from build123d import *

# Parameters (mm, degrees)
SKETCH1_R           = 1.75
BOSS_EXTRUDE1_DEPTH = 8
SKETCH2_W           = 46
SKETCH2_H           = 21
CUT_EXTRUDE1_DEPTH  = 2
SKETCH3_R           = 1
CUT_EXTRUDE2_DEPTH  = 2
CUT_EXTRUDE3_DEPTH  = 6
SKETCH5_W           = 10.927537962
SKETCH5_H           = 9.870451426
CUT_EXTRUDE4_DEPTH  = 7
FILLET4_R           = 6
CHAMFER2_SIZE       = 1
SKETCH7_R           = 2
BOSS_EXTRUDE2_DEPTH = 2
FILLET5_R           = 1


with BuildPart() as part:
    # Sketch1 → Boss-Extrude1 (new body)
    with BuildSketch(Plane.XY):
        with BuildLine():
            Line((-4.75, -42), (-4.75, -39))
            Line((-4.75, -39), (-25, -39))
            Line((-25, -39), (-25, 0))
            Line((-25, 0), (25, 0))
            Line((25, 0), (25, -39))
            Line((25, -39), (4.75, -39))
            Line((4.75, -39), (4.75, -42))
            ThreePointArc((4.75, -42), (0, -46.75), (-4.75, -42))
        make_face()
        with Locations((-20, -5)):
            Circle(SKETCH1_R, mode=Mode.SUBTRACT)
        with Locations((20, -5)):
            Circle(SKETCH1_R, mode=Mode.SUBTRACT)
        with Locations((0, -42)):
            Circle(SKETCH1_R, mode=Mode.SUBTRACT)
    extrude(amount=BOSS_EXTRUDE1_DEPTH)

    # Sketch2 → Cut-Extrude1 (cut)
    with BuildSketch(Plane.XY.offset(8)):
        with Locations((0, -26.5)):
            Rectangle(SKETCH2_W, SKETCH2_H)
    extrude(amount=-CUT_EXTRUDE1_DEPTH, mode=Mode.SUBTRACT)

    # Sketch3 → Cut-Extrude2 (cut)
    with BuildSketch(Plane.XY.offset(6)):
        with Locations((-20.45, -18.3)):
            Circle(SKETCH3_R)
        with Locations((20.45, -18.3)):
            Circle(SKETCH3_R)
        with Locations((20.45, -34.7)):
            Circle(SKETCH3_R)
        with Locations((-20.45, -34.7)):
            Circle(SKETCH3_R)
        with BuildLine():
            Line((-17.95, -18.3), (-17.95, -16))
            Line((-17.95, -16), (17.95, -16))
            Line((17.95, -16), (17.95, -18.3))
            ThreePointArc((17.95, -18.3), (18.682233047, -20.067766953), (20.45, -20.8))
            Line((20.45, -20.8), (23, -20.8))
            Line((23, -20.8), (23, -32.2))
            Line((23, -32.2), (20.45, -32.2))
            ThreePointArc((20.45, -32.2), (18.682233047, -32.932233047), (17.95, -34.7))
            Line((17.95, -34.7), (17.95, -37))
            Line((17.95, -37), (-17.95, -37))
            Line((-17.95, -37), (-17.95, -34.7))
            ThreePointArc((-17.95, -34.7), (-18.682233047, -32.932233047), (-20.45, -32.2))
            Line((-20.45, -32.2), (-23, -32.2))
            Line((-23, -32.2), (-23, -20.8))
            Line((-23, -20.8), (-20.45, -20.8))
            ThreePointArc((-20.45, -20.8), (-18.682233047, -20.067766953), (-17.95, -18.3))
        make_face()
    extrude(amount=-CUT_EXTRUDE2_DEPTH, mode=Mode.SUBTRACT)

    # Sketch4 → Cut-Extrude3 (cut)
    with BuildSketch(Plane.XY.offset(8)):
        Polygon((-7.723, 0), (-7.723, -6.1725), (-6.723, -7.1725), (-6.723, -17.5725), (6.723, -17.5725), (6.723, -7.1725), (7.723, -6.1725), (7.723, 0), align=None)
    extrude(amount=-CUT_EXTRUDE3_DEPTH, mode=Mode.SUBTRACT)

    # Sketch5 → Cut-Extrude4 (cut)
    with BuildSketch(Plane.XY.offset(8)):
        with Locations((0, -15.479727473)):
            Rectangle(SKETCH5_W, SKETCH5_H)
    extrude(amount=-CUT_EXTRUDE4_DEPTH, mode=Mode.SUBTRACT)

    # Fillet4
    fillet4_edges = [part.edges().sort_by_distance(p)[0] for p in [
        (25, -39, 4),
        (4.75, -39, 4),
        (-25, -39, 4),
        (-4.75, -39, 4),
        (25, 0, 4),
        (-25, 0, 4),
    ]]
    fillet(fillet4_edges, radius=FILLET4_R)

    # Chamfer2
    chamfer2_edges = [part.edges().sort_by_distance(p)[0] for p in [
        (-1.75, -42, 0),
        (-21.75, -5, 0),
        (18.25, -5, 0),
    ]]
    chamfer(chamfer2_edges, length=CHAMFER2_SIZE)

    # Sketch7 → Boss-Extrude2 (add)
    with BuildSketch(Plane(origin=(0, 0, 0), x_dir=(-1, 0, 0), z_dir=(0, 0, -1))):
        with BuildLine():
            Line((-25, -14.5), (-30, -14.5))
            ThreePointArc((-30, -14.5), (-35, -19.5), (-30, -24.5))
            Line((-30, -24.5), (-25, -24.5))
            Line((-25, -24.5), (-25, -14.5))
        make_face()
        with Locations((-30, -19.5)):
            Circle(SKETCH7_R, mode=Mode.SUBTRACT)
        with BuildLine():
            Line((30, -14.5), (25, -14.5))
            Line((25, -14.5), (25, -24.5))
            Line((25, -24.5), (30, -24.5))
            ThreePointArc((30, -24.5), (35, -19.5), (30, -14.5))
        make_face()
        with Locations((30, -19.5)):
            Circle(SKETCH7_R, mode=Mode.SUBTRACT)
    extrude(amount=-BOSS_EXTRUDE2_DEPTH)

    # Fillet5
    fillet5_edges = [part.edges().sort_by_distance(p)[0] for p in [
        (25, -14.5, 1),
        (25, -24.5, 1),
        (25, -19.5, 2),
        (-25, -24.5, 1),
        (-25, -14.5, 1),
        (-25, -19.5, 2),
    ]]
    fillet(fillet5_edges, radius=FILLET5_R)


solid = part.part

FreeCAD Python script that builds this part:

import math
import FreeCAD as App
import Part
import Sketcher

V = App.Vector
Q = App.Units.Quantity


def edges_at(feature, points):
    """Names of the edges that pass closest to the given points."""
    edges = feature.Shape.Edges
    near = lambda p: min(range(len(edges)), key=lambda i: edges[i].distToShape(Part.Vertex(*p))[0])
    return sorted({f"Edge{near(p) + 1}" for p in points})

doc = App.newDocument("Part")
params = doc.addObject("Spreadsheet::Sheet", "Params")
for row, (alias, value) in enumerate([
    ("sketch1_diameter", "3.5 mm"),
    ("sketch1_width", "50 mm"),
    ("sketch1_height", "3 mm"),
    ("sketch1_height2", "39 mm"),
    ("sketch1_radius", "4.75 mm"),
    ("pad1_length", "8 mm"),
    ("sketch2_width", "46 mm"),
    ("sketch2_height", "21 mm"),
    ("pocket1_length", "2 mm"),
    ("sketch3_diameter", "2 mm"),
    ("sketch3_radius", "2.5 mm"),
    ("sketch3_width", "35.9 mm"),
    ("sketch3_height", "2.3 mm"),
    ("sketch3_height2", "11.4 mm"),
    ("pocket2_length", "2 mm"),
    ("sketch4_height", "10.4 mm"),
    ("pocket3_length", "6 mm"),
    ("pocket4_length", "7 mm"),
    ("fillet_radius", "6 mm"),
    ("chamfer_size", "1 mm"),
    ("sketch6_diameter", "4 mm"),
    ("sketch6_radius", "5 mm"),
    ("sketch6_width", "5 mm"),
    ("pad2_length", "2 mm"),
    ("fillet2_radius", "1 mm"),
], start=1):
    params.set(f"A{row}", alias)
    params.set(f"B{row}", "=" + value)
    params.setAlias(f"B{row}", alias)

body = doc.addObject("PartDesign::Body", "Body")

# Sketch on XY plane
sketch1 = body.newObject("Sketcher::SketchObject", "Sketch")
sketch1.AttachmentSupport = (doc.getObject("XY_Plane"), [""])
sketch1.MapMode = "FlatFace"
sketch1.addGeometry(Part.LineSegment(V(-4.8, -39, 0), V(-4.8, -42, 0)), False)
sketch1.addGeometry(Part.ArcOfCircle(Part.Circle(V(0, -42, 0), V(0, 0, 1), 4.8), math.radians(180), math.radians(360)), False)
sketch1.addGeometry(Part.LineSegment(V(4.8, -42, 0), V(4.8, -39, 0)), False)
sketch1.addGeometry(Part.LineSegment(V(4.8, -39, 0), V(25, -39, 0)), False)
sketch1.addGeometry(Part.LineSegment(V(25, -39, 0), V(25, 0, 0)), False)
sketch1.addGeometry(Part.LineSegment(V(25, 0, 0), V(-25, 0, 0)), False)
sketch1.addGeometry(Part.LineSegment(V(-25, 0, 0), V(-25, -39, 0)), False)
sketch1.addGeometry(Part.LineSegment(V(-25, -39, 0), V(-4.8, -39, 0)), False)
sketch1.addGeometry(Part.Circle(V(0, -42, 0), V(0, 0, 1), 1.8), False)
sketch1.addGeometry(Part.Circle(V(20, -5, 0), V(0, 0, 1), 1.8), False)
sketch1.addGeometry(Part.Circle(V(-20, -5, 0), V(0, 0, 1), 1.8), False)
sketch1.addConstraint(Sketcher.Constraint("Tangent", 0, 2, 1, 1))
sketch1.addConstraint(Sketcher.Constraint("Tangent", 1, 2, 2, 1))
sketch1.addConstraint(Sketcher.Constraint("Coincident", 2, 2, 3, 1))
sketch1.addConstraint(Sketcher.Constraint("Coincident", 3, 2, 4, 1))
sketch1.addConstraint(Sketcher.Constraint("Coincident", 4, 2, 5, 1))
sketch1.addConstraint(Sketcher.Constraint("Coincident", 5, 2, 6, 1))
sketch1.addConstraint(Sketcher.Constraint("Coincident", 6, 2, 7, 1))
sketch1.addConstraint(Sketcher.Constraint("Coincident", 7, 2, 0, 1))
sketch1.addConstraint(Sketcher.Constraint("Vertical", 0))
sketch1.addConstraint(Sketcher.Constraint("Vertical", 2))
sketch1.addConstraint(Sketcher.Constraint("Horizontal", 3))
sketch1.addConstraint(Sketcher.Constraint("Vertical", 4))
sketch1.addConstraint(Sketcher.Constraint("Horizontal", 5))
sketch1.addConstraint(Sketcher.Constraint("Vertical", 6))
sketch1.addConstraint(Sketcher.Constraint("Horizontal", 7))
sketch1.addConstraint(Sketcher.Constraint("Coincident", 8, 3, 1, 3))
sketch1.addConstraint(Sketcher.Constraint("Equal", 8, 9))
sketch1.addConstraint(Sketcher.Constraint("Equal", 9, 10))
sketch1.addConstraint(Sketcher.Constraint("Symmetric", 4, 2, 5, 2, -1, 1))
sketch1.addConstraint(Sketcher.Constraint("Symmetric", 9, 3, 10, 3, -2))
sketch1.addConstraint(Sketcher.Constraint("Symmetric", 2, 2, 7, 2, -2))
sketch1.addConstraint(Sketcher.Constraint("Diameter", 8, Q("3.5 mm")))
sketch1.addConstraint(Sketcher.Constraint("DistanceX", 5, 2, 5, 1, Q("50 mm")))
sketch1.addConstraint(Sketcher.Constraint("DistanceY", 0, 2, 0, 1, Q("3 mm")))
sketch1.addConstraint(Sketcher.Constraint("DistanceY", 4, 1, 4, 2, Q("39 mm")))
sketch1.addConstraint(Sketcher.Constraint("Radius", 1, Q("4.75 mm")))
sketch1.addConstraint(Sketcher.Constraint("DistanceX", -1, 1, 9, 3, Q("20 mm")))
sketch1.addConstraint(Sketcher.Constraint("DistanceY", 9, 3, -1, 1, Q("5 mm")))
sketch1.setExpression("Constraints[21]", "Params.sketch1_diameter")
sketch1.setExpression("Constraints[22]", "Params.sketch1_width")
sketch1.setExpression("Constraints[23]", "Params.sketch1_height")
sketch1.setExpression("Constraints[24]", "Params.sketch1_height2")
sketch1.setExpression("Constraints[25]", "Params.sketch1_radius")
pad1 = body.newObject("PartDesign::Pad", "Pad")
pad1.Profile = sketch1
pad1.setExpression("Length", "Params.pad1_length")

# Sketch on XY plane
sketch2 = body.newObject("Sketcher::SketchObject", "Sketch001")
sketch2.AttachmentSupport = (doc.getObject("XY_Plane"), [""])
sketch2.MapMode = "FlatFace"
sketch2.AttachmentOffset = App.Placement(V(0, 0, 8), App.Rotation())
sketch2.addGeometry(Part.LineSegment(V(-23, -16, 0), V(-23, -37, 0)), False)
sketch2.addGeometry(Part.LineSegment(V(-23, -37, 0), V(23, -37, 0)), False)
sketch2.addGeometry(Part.LineSegment(V(23, -37, 0), V(23, -16, 0)), False)
sketch2.addGeometry(Part.LineSegment(V(23, -16, 0), V(-23, -16, 0)), False)
sketch2.addConstraint(Sketcher.Constraint("Coincident", 0, 2, 1, 1))
sketch2.addConstraint(Sketcher.Constraint("Coincident", 1, 2, 2, 1))
sketch2.addConstraint(Sketcher.Constraint("Coincident", 2, 2, 3, 1))
sketch2.addConstraint(Sketcher.Constraint("Coincident", 3, 2, 0, 1))
sketch2.addConstraint(Sketcher.Constraint("Vertical", 0))
sketch2.addConstraint(Sketcher.Constraint("Horizontal", 1))
sketch2.addConstraint(Sketcher.Constraint("Vertical", 2))
sketch2.addConstraint(Sketcher.Constraint("Horizontal", 3))
sketch2.addConstraint(Sketcher.Constraint("DistanceX", 1, 1, 1, 2, Q("46 mm")))
sketch2.addConstraint(Sketcher.Constraint("DistanceY", 0, 2, 0, 1, Q("21 mm")))
sketch2.addConstraint(Sketcher.Constraint("DistanceX", 0, 2, -1, 1, Q("23 mm")))
sketch2.addConstraint(Sketcher.Constraint("DistanceY", 0, 2, -1, 1, Q("37 mm")))
sketch2.setExpression("Constraints[8]", "Params.sketch2_width")
sketch2.setExpression("Constraints[9]", "Params.sketch2_height")
pocket1 = body.newObject("PartDesign::Pocket", "Pocket")
pocket1.Profile = sketch2
pocket1.setExpression("Length", "Params.pocket1_length")

# Sketch on XY plane
sketch3 = body.newObject("Sketcher::SketchObject", "Sketch002")
sketch3.AttachmentSupport = (doc.getObject("XY_Plane"), [""])
sketch3.MapMode = "FlatFace"
sketch3.AttachmentOffset = App.Placement(V(0, 0, 6), App.Rotation())
sketch3.addGeometry(Part.Circle(V(-20.4, -18.3, 0), V(0, 0, 1), 1), False)
sketch3.addGeometry(Part.Circle(V(20.4, -18.3, 0), V(0, 0, 1), 1), False)
sketch3.addGeometry(Part.Circle(V(20.4, -34.7, 0), V(0, 0, 1), 1), False)
sketch3.addGeometry(Part.Circle(V(-20.4, -34.7, 0), V(0, 0, 1), 1), False)
sketch3.addGeometry(Part.LineSegment(V(-17.9, -16, 0), V(-17.9, -18.3, 0)), False)
sketch3.addGeometry(Part.ArcOfCircle(Part.Circle(V(-20.4, -18.3, 0), V(0, 0, 1), 2.5), math.radians(-90), math.radians(0)), False)
sketch3.addGeometry(Part.LineSegment(V(-20.4, -20.8, 0), V(-23, -20.8, 0)), False)
sketch3.addGeometry(Part.LineSegment(V(-23, -20.8, 0), V(-23, -32.2, 0)), False)
sketch3.addGeometry(Part.LineSegment(V(-23, -32.2, 0), V(-20.4, -32.2, 0)), False)
sketch3.addGeometry(Part.ArcOfCircle(Part.Circle(V(-20.4, -34.7, 0), V(0, 0, 1), 2.5), math.radians(0), math.radians(90)), False)
sketch3.addGeometry(Part.LineSegment(V(-17.9, -34.7, 0), V(-17.9, -37, 0)), False)
sketch3.addGeometry(Part.LineSegment(V(-17.9, -37, 0), V(17.9, -37, 0)), False)
sketch3.addGeometry(Part.LineSegment(V(17.9, -37, 0), V(17.9, -34.7, 0)), False)
sketch3.addGeometry(Part.ArcOfCircle(Part.Circle(V(20.4, -34.7, 0), V(0, 0, 1), 2.5), math.radians(90), math.radians(180)), False)
sketch3.addGeometry(Part.LineSegment(V(20.4, -32.2, 0), V(23, -32.2, 0)), False)
sketch3.addGeometry(Part.LineSegment(V(23, -32.2, 0), V(23, -20.8, 0)), False)
sketch3.addGeometry(Part.LineSegment(V(23, -20.8, 0), V(20.4, -20.8, 0)), False)
sketch3.addGeometry(Part.ArcOfCircle(Part.Circle(V(20.4, -18.3, 0), V(0, 0, 1), 2.5), math.radians(180), math.radians(270)), False)
sketch3.addGeometry(Part.LineSegment(V(17.9, -18.3, 0), V(17.9, -16, 0)), False)
sketch3.addGeometry(Part.LineSegment(V(17.9, -16, 0), V(-17.9, -16, 0)), False)
sketch3.addConstraint(Sketcher.Constraint("Tangent", 4, 2, 5, 2))
sketch3.addConstraint(Sketcher.Constraint("Tangent", 5, 1, 6, 1))
sketch3.addConstraint(Sketcher.Constraint("Coincident", 6, 2, 7, 1))
sketch3.addConstraint(Sketcher.Constraint("Coincident", 7, 2, 8, 1))
sketch3.addConstraint(Sketcher.Constraint("Tangent", 8, 2, 9, 2))
sketch3.addConstraint(Sketcher.Constraint("Tangent", 9, 1, 10, 1))
sketch3.addConstraint(Sketcher.Constraint("Coincident", 10, 2, 11, 1))
sketch3.addConstraint(Sketcher.Constraint("Coincident", 11, 2, 12, 1))
sketch3.addConstraint(Sketcher.Constraint("Tangent", 12, 2, 13, 2))
sketch3.addConstraint(Sketcher.Constraint("Tangent", 13, 1, 14, 1))
sketch3.addConstraint(Sketcher.Constraint("Coincident", 14, 2, 15, 1))
sketch3.addConstraint(Sketcher.Constraint("Coincident", 15, 2, 16, 1))
sketch3.addConstraint(Sketcher.Constraint("Tangent", 16, 2, 17, 2))
sketch3.addConstraint(Sketcher.Constraint("Tangent", 17, 1, 18, 1))
sketch3.addConstraint(Sketcher.Constraint("Coincident", 18, 2, 19, 1))
sketch3.addConstraint(Sketcher.Constraint("Coincident", 19, 2, 4, 1))
sketch3.addConstraint(Sketcher.Constraint("Vertical", 4))
sketch3.addConstraint(Sketcher.Constraint("Horizontal", 6))
sketch3.addConstraint(Sketcher.Constraint("Vertical", 7))
sketch3.addConstraint(Sketcher.Constraint("Horizontal", 8))
sketch3.addConstraint(Sketcher.Constraint("Vertical", 10))
sketch3.addConstraint(Sketcher.Constraint("Horizontal", 11))
sketch3.addConstraint(Sketcher.Constraint("Vertical", 12))
sketch3.addConstraint(Sketcher.Constraint("Horizontal", 14))
sketch3.addConstraint(Sketcher.Constraint("Vertical", 15))
sketch3.addConstraint(Sketcher.Constraint("Horizontal", 16))
sketch3.addConstraint(Sketcher.Constraint("Vertical", 18))
sketch3.addConstraint(Sketcher.Constraint("Horizontal", 19))
sketch3.addConstraint(Sketcher.Constraint("Coincident", 5, 3, 0, 3))
sketch3.addConstraint(Sketcher.Constraint("Coincident", 9, 3, 3, 3))
sketch3.addConstraint(Sketcher.Constraint("Coincident", 13, 3, 2, 3))
sketch3.addConstraint(Sketcher.Constraint("Coincident", 17, 3, 1, 3))
sketch3.addConstraint(Sketcher.Constraint("Equal", 0, 1))
sketch3.addConstraint(Sketcher.Constraint("Equal", 1, 2))
sketch3.addConstraint(Sketcher.Constraint("Equal", 2, 3))
sketch3.addConstraint(Sketcher.Constraint("Equal", 5, 9))
sketch3.addConstraint(Sketcher.Constraint("Equal", 9, 13))
sketch3.addConstraint(Sketcher.Constraint("Equal", 13, 17))
sketch3.addConstraint(Sketcher.Constraint("Symmetric", 0, 3, 1, 3, -2))
sketch3.addConstraint(Sketcher.Constraint("Symmetric", 2, 3, 3, 3, -2))
sketch3.addConstraint(Sketcher.Constraint("Vertical", 1, 3, 2, 3))
sketch3.addConstraint(Sketcher.Constraint("Equal", 8, 14))
sketch3.addConstraint(Sketcher.Constraint("Equal", 4, 10))
sketch3.addConstraint(Sketcher.Constraint("Diameter", 0, Q("2 mm")))
sketch3.addConstraint(Sketcher.Constraint("Radius", 5, Q("2.5 mm")))
sketch3.addConstraint(Sketcher.Constraint("DistanceX", 11, 1, 11, 2, Q("35.9 mm")))
sketch3.addConstraint(Sketcher.Constraint("DistanceY", 4, 2, 4, 1, Q("2.3 mm")))
sketch3.addConstraint(Sketcher.Constraint("DistanceY", 7, 2, 7, 1, Q("11.4 mm")))
sketch3.addConstraint(Sketcher.Constraint("DistanceX", 6, 2, -1, 1, Q("23 mm")))
sketch3.addConstraint(Sketcher.Constraint("DistanceY", 10, 2, -1, 1, Q("37 mm")))
sketch3.setExpression("Constraints[43]", "Params.sketch3_diameter")
sketch3.setExpression("Constraints[44]", "Params.sketch3_radius")
sketch3.setExpression("Constraints[45]", "Params.sketch3_width")
sketch3.setExpression("Constraints[46]", "Params.sketch3_height")
sketch3.setExpression("Constraints[47]", "Params.sketch3_height2")
pocket2 = body.newObject("PartDesign::Pocket", "Pocket001")
pocket2.Profile = sketch3
pocket2.setExpression("Length", "Params.pocket2_length")

# Sketch on XY plane
sketch4 = body.newObject("Sketcher::SketchObject", "Sketch003")
sketch4.AttachmentSupport = (doc.getObject("XY_Plane"), [""])
sketch4.MapMode = "FlatFace"
sketch4.AttachmentOffset = App.Placement(V(0, 0, 8), App.Rotation())
sketch4.addGeometry(Part.LineSegment(V(-7.7, 0, 0), V(-7.7, -6.2, 0)), False)
sketch4.addGeometry(Part.LineSegment(V(-7.7, -6.2, 0), V(-6.7, -7.2, 0)), False)
sketch4.addGeometry(Part.LineSegment(V(-6.7, -7.2, 0), V(-6.7, -17.6, 0)), False)
sketch4.addGeometry(Part.LineSegment(V(-6.7, -17.6, 0), V(6.7, -17.6, 0)), False)
sketch4.addGeometry(Part.LineSegment(V(6.7, -17.6, 0), V(6.7, -7.2, 0)), False)
sketch4.addGeometry(Part.LineSegment(V(6.7, -7.2, 0), V(7.7, -6.2, 0)), False)
sketch4.addGeometry(Part.LineSegment(V(7.7, -6.2, 0), V(7.7, 0, 0)), False)
sketch4.addGeometry(Part.LineSegment(V(7.7, 0, 0), V(-7.7, 0, 0)), False)
sketch4.addConstraint(Sketcher.Constraint("Coincident", 0, 2, 1, 1))
sketch4.addConstraint(Sketcher.Constraint("Coincident", 1, 2, 2, 1))
sketch4.addConstraint(Sketcher.Constraint("Coincident", 2, 2, 3, 1))
sketch4.addConstraint(Sketcher.Constraint("Coincident", 3, 2, 4, 1))
sketch4.addConstraint(Sketcher.Constraint("Coincident", 4, 2, 5, 1))
sketch4.addConstraint(Sketcher.Constraint("Coincident", 5, 2, 6, 1))
sketch4.addConstraint(Sketcher.Constraint("Coincident", 6, 2, 7, 1))
sketch4.addConstraint(Sketcher.Constraint("Coincident", 7, 2, 0, 1))
sketch4.addConstraint(Sketcher.Constraint("Vertical", 0))
sketch4.addConstraint(Sketcher.Constraint("Vertical", 2))
sketch4.addConstraint(Sketcher.Constraint("Horizontal", 3))
sketch4.addConstraint(Sketcher.Constraint("Vertical", 4))
sketch4.addConstraint(Sketcher.Constraint("Vertical", 6))
sketch4.addConstraint(Sketcher.Constraint("Horizontal", 7))
sketch4.addConstraint(Sketcher.Constraint("Symmetric", 6, 2, 7, 2, -1, 1))
sketch4.addConstraint(Sketcher.Constraint("Symmetric", 1, 2, 4, 2, -2))
sketch4.addConstraint(Sketcher.Constraint("Perpendicular", 1, 5))
sketch4.addConstraint(Sketcher.Constraint("Horizontal", 0, 2, 5, 2))
sketch4.addConstraint(Sketcher.Constraint("DistanceY", 2, 2, 2, 1, Q("10.4 mm")))
sketch4.addConstraint(Sketcher.Constraint("DistanceX", 0, 2, 1, 2, Q("1 mm")))
sketch4.addConstraint(Sketcher.Constraint("DistanceX", 3, 1, 3, 2, Q("13.446 mm")))
sketch4.addConstraint(Sketcher.Constraint("DistanceY", 0, 2, 0, 1, Q("6.1725 mm")))
sketch4.setExpression("Constraints[18]", "Params.sketch4_height")
pocket3 = body.newObject("PartDesign::Pocket", "Pocket002")
pocket3.Profile = sketch4
pocket3.setExpression("Length", "Params.pocket3_length")

# Sketch on XY plane
sketch5 = body.newObject("Sketcher::SketchObject", "Sketch004")
sketch5.AttachmentSupport = (doc.getObject("XY_Plane"), [""])
sketch5.MapMode = "FlatFace"
sketch5.AttachmentOffset = App.Placement(V(0, 0, 8), App.Rotation())
sketch5.addGeometry(Part.LineSegment(V(-5, -11, 0), V(-5, -20, 0)), False)
sketch5.addGeometry(Part.LineSegment(V(-5, -20, 0), V(5, -20, 0)), False)
sketch5.addGeometry(Part.LineSegment(V(5, -20, 0), V(5, -11, 0)), False)
sketch5.addGeometry(Part.LineSegment(V(5, -11, 0), V(-5, -11, 0)), False)
sketch5.addConstraint(Sketcher.Constraint("Coincident", 0, 2, 1, 1))
sketch5.addConstraint(Sketcher.Constraint("Coincident", 1, 2, 2, 1))
sketch5.addConstraint(Sketcher.Constraint("Coincident", 2, 2, 3, 1))
sketch5.addConstraint(Sketcher.Constraint("Coincident", 3, 2, 0, 1))
sketch5.addConstraint(Sketcher.Constraint("Vertical", 0))
sketch5.addConstraint(Sketcher.Constraint("Horizontal", 1))
sketch5.addConstraint(Sketcher.Constraint("Vertical", 2))
sketch5.addConstraint(Sketcher.Constraint("Horizontal", 3))
sketch5.addConstraint(Sketcher.Constraint("DistanceY", 0, 2, 0, 1, Q("9.870451 mm")))
sketch5.addConstraint(Sketcher.Constraint("DistanceY", 2, 2, -1, 1, Q("10.544502 mm")))
sketch5.addConstraint(Sketcher.Constraint("DistanceX", 1, 1, 1, 2, Q("10.927538 mm")))
sketch5.addConstraint(Sketcher.Constraint("DistanceX", 0, 2, -1, 1, Q("5.463769 mm")))
pocket4 = body.newObject("PartDesign::Pocket", "Pocket003")
pocket4.Profile = sketch5
pocket4.setExpression("Length", "Params.pocket4_length")
doc.recompute()

fillet = body.newObject("PartDesign::Fillet", "Fillet")
fillet.Base = (pocket4, edges_at(pocket4, [
    (25, -39, 4),
    (4.75, -39, 4),
    (-25, -39, 4),
    (-4.75, -39, 4),
    (25, 0, 4),
    (-25, 0, 4),
]))
fillet.setExpression("Radius", "Params.fillet_radius")
doc.recompute()

chamfer = body.newObject("PartDesign::Chamfer", "Chamfer")
chamfer.Base = (fillet, edges_at(fillet, [(-1.75, -42, 0), (-21.75, -5, 0), (18.25, -5, 0)]))
chamfer.setExpression("Size", "Params.chamfer_size")

# Sketch on XY plane
sketch6 = body.newObject("Sketcher::SketchObject", "Sketch005")
sketch6.AttachmentSupport = (doc.getObject("XY_Plane"), [""])
sketch6.MapMode = "FlatFace"
sketch6.addGeometry(Part.LineSegment(V(25, -14.5, 0), V(30, -14.5, 0)), False)
sketch6.addGeometry(Part.ArcOfCircle(Part.Circle(V(30, -19.5, 0), V(0, 0, 1), 5), math.radians(-90), math.radians(90)), False)
sketch6.addGeometry(Part.LineSegment(V(30, -24.5, 0), V(25, -24.5, 0)), False)
sketch6.addGeometry(Part.LineSegment(V(25, -24.5, 0), V(25, -14.5, 0)), False)
sketch6.addGeometry(Part.Circle(V(30, -19.5, 0), V(0, 0, 1), 2), False)
sketch6.addGeometry(Part.LineSegment(V(-30, -14.5, 0), V(-25, -14.5, 0)), False)
sketch6.addGeometry(Part.LineSegment(V(-25, -14.5, 0), V(-25, -24.5, 0)), False)
sketch6.addGeometry(Part.LineSegment(V(-25, -24.5, 0), V(-30, -24.5, 0)), False)
sketch6.addGeometry(Part.ArcOfCircle(Part.Circle(V(-30, -19.5, 0), V(0, 0, 1), 5), math.radians(90), math.radians(270)), False)
sketch6.addGeometry(Part.Circle(V(-30, -19.5, 0), V(0, 0, 1), 2), False)
sketch6.addConstraint(Sketcher.Constraint("Tangent", 0, 2, 1, 2))
sketch6.addConstraint(Sketcher.Constraint("Tangent", 1, 1, 2, 1))
sketch6.addConstraint(Sketcher.Constraint("Coincident", 2, 2, 3, 1))
sketch6.addConstraint(Sketcher.Constraint("Coincident", 3, 2, 0, 1))
sketch6.addConstraint(Sketcher.Constraint("Coincident", 5, 2, 6, 1))
sketch6.addConstraint(Sketcher.Constraint("Coincident", 6, 2, 7, 1))
sketch6.addConstraint(Sketcher.Constraint("Tangent", 7, 2, 8, 2))
sketch6.addConstraint(Sketcher.Constraint("Tangent", 8, 1, 5, 1))
sketch6.addConstraint(Sketcher.Constraint("Horizontal", 0))
sketch6.addConstraint(Sketcher.Constraint("Horizontal", 2))
sketch6.addConstraint(Sketcher.Constraint("Vertical", 3))
sketch6.addConstraint(Sketcher.Constraint("Horizontal", 5))
sketch6.addConstraint(Sketcher.Constraint("Vertical", 6))
sketch6.addConstraint(Sketcher.Constraint("Horizontal", 7))
sketch6.addConstraint(Sketcher.Constraint("Coincident", 4, 3, 1, 3))
sketch6.addConstraint(Sketcher.Constraint("Coincident", 9, 3, 8, 3))
sketch6.addConstraint(Sketcher.Constraint("Equal", 1, 8))
sketch6.addConstraint(Sketcher.Constraint("Equal", 4, 9))
sketch6.addConstraint(Sketcher.Constraint("Symmetric", 1, 3, 8, 3, -2))
sketch6.addConstraint(Sketcher.Constraint("Equal", 2, 5))
sketch6.addConstraint(Sketcher.Constraint("Diameter", 4, Q("4 mm")))
sketch6.addConstraint(Sketcher.Constraint("Radius", 1, Q("5 mm")))
sketch6.addConstraint(Sketcher.Constraint("DistanceX", 0, 1, 0, 2, Q("5 mm")))
sketch6.addConstraint(Sketcher.Constraint("DistanceX", -1, 1, 1, 3, Q("30 mm")))
sketch6.addConstraint(Sketcher.Constraint("DistanceY", 1, 3, -1, 1, Q("19.5 mm")))
sketch6.setExpression("Constraints[20]", "Params.sketch6_diameter")
sketch6.setExpression("Constraints[21]", "Params.sketch6_radius")
sketch6.setExpression("Constraints[22]", "Params.sketch6_width")
pad2 = body.newObject("PartDesign::Pad", "Pad001")
pad2.Profile = sketch6
pad2.setExpression("Length", "Params.pad2_length")
doc.recompute()

fillet2 = body.newObject("PartDesign::Fillet", "Fillet001")
fillet2.Base = (pad2, edges_at(pad2, [
    (25, -14.5, 1),
    (25, -24.5, 1),
    (25, -19.5, 2),
    (-25, -24.5, 1),
    (-25, -14.5, 1),
    (-25, -19.5, 2),
]))
fillet2.setExpression("Radius", "Params.fillet2_radius")

doc.recompute()
